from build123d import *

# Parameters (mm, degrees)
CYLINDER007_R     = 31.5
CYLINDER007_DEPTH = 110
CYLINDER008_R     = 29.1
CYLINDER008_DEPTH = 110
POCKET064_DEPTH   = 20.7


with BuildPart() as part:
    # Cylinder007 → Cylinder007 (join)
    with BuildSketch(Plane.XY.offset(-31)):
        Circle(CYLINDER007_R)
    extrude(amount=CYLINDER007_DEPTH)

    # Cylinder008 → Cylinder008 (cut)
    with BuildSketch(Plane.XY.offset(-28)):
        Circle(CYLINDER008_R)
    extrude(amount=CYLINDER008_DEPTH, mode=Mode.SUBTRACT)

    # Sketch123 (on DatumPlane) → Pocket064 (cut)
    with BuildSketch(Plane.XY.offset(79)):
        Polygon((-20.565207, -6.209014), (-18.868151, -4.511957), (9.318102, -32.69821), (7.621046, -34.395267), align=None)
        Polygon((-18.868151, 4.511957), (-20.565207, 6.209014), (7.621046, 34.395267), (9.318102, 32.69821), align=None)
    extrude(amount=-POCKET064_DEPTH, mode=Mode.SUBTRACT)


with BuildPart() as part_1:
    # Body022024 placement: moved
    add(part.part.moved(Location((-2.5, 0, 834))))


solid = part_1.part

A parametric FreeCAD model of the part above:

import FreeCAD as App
import Part
import Sketcher

V = App.Vector
Q = App.Units.Quantity

doc = App.newDocument("Part")
body = doc.addObject("PartDesign::Body", "Body")

sketch1 = body.newObject("Sketcher::SketchObject", "Sketch")
sketch1.AttachmentSupport = (doc.getObject("XY_Plane"), [""])
sketch1.MapMode = "FlatFace"
sketch1.AttachmentOffset = App.Placement(V(0, 0, -31), App.Rotation())
sketch1.addGeometry(Part.Circle(V(0, 0, 0), V(0, 0, 1), 32), False)
sketch1.addConstraint([
    Sketcher.Constraint("Coincident", 0, 3, -1, 1),
    Sketcher.Constraint("Diameter", 0, Q("63 mm")),
])
pad1 = body.newObject("PartDesign::Pad", "Pad")
pad1.Profile = sketch1
pad1.Length = 110

sketch2 = body.newObject("Sketcher::SketchObject", "Sketch001")
sketch2.AttachmentSupport = (doc.getObject("XY_Plane"), [""])
sketch2.MapMode = "FlatFace"
sketch2.AttachmentOffset = App.Placement(V(0, 0, -28), App.Rotation())
sketch2.addGeometry(Part.Circle(V(0, 0, 0), V(0, 0, 1), 29), False)
sketch2.addConstraint([
    Sketcher.Constraint("Coincident", 0, 3, -1, 1),
    Sketcher.Constraint("Diameter", 0, Q("58.2 mm")),
])
pocket1 = body.newObject("PartDesign::Pocket", "Pocket")
pocket1.Profile = sketch2
pocket1.Length = 110
pocket1.Reversed = True

sketch3 = body.newObject("Sketcher::SketchObject", "Sketch002")
sketch3.AttachmentSupport = (doc.getObject("XY_Plane"), [""])
sketch3.MapMode = "FlatFace"
sketch3.AttachmentOffset = App.Placement(V(0, 0, 79), App.Rotation())
sketch3.addGeometry([
    Part.LineSegment(V(-18.9, -4.5, 0), V(-20.6, -6.2, 0)),
    Part.LineSegment(V(-20.6, -6.2, 0), V(7.6, -34.4, 0)),
    Part.LineSegment(V(7.6, -34.4, 0), V(9.3, -32.7, 0)),
    Part.LineSegment(V(9.3, -32.7, 0), V(-18.9, -4.5, 0)),
    Part.LineSegment(V(-20.6, 6.2, 0), V(-18.9, 4.5, 0)),
    Part.LineSegment(V(-18.9, 4.5, 0), V(9.3, 32.7, 0)),
    Part.LineSegment(V(9.3, 32.7, 0), V(7.6, 34.4, 0)),
    Part.LineSegment(V(7.6, 34.4, 0), V(-20.6, 6.2, 0)),
], False)
sketch3.addConstraint([
    Sketcher.Constraint("Coincident", 0, 2, 1, 1),
    Sketcher.Constraint("Coincident", 1, 2, 2, 1),
    Sketcher.Constraint("Coincident", 2, 2, 3, 1),
    Sketcher.Constraint("Coincident", 3, 2, 0, 1),
    Sketcher.Constraint("Coincident", 4, 2, 5, 1),
    Sketcher.Constraint("Coincident", 5, 2, 6, 1),
    Sketcher.Constraint("Coincident", 6, 2, 7, 1),
    Sketcher.Constraint("Coincident", 7, 2, 4, 1),
    Sketcher.Constraint("Symmetric", 3, 2, 4, 2, -1),
    Sketcher.Constraint("Symmetric", 2, 2, 5, 2, -1),
    Sketcher.Constraint("Symmetric", 1, 2, 6, 2, -1),
    Sketcher.Constraint("Symmetric", 0, 2, 7, 2, -1),
    Sketcher.Constraint("Perpendicular", 0, 1),
    Sketcher.Constraint("Perpendicular", 1, 2),
    Sketcher.Constraint("Perpendicular", 2, 3),
    Sketcher.Constraint("Parallel", 3, 4),
    Sketcher.Constraint("Distance", 0, Q("2.4 mm")),
    Sketcher.Constraint("Distance", 1, Q("39.861381 mm")),
    Sketcher.Constraint("DistanceY", 2, 2, -1, 1, Q("32.69821 mm")),
    Sketcher.Constraint("DistanceX", 3, 2, -1, 1, Q("18.868151 mm")),
])
pocket2 = body.newObject("PartDesign::Pocket", "Pocket001")
pocket2.Profile = sketch3
pocket2.Length = 20.7
body2 = doc.addObject("PartDesign::Body", "Body001")
doc.recompute()

body.Placement = App.Placement(V(-2.5, 0, 834), App.Rotation(V(0, 0, 1), 0))
boolean = body2.newObject("PartDesign::Boolean", "Boolean")
boolean.Type = "Fuse"
boolean.addObjects([body])

doc.recompute()
